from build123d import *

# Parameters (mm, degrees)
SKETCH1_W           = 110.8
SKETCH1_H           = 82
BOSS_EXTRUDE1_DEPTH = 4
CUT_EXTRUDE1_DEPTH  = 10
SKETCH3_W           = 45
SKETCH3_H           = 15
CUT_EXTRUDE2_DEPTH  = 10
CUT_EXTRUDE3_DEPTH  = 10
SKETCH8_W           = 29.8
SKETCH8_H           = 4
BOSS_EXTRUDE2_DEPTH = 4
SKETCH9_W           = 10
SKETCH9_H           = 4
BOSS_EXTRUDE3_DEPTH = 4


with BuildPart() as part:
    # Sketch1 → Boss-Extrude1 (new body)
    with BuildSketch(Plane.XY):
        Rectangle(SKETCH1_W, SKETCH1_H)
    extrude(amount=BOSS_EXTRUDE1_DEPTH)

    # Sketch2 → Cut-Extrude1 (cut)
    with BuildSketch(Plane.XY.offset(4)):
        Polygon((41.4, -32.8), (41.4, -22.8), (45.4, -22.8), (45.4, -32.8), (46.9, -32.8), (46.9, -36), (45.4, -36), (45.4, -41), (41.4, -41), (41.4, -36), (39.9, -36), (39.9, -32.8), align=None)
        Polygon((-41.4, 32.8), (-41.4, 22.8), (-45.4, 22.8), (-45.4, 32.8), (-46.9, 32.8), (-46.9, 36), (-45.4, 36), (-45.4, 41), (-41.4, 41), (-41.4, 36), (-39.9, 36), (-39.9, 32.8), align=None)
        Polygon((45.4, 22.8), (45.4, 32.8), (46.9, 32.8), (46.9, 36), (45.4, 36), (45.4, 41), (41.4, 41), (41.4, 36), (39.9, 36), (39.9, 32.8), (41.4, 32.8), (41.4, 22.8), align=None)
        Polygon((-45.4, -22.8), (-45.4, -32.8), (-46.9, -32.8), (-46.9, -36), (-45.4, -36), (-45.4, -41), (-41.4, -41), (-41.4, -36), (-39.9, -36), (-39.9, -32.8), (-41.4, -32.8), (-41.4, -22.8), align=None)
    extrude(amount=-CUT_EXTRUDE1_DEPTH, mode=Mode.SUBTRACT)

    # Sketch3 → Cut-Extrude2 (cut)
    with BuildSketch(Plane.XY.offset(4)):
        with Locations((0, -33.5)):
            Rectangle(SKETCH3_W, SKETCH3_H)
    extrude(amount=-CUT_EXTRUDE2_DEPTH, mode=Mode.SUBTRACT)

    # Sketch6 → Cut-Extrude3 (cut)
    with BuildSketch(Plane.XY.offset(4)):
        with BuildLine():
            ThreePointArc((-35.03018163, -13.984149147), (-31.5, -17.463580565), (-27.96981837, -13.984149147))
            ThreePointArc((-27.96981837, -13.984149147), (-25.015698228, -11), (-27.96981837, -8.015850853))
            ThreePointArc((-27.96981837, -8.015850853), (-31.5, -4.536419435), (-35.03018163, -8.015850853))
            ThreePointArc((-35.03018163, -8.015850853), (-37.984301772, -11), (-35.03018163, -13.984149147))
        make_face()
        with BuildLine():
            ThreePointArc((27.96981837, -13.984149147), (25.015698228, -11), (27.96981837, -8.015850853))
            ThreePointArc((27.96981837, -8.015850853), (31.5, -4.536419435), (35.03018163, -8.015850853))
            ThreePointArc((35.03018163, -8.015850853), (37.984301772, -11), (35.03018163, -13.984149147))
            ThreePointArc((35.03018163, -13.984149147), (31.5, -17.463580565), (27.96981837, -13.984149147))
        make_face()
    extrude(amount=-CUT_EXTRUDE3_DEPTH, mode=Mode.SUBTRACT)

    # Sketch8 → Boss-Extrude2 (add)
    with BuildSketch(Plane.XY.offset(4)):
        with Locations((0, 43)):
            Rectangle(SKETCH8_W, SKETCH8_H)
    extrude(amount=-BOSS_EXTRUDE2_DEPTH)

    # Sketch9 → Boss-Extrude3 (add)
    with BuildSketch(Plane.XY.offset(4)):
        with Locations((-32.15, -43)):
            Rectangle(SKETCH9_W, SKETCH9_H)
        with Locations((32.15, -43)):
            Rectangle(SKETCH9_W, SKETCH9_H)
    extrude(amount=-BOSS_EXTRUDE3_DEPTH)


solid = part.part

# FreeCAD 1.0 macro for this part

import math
import FreeCAD as App
import Part
import Sketcher

V = App.Vector


def add_polygon(sketch, points):
    """Adds a closed chain of lines whose ends are joined by coincident constraints."""
    first, n = sketch.GeometryCount, len(points)
    for a, b in zip(points, points[1:] + points[:1]):
        sketch.addGeometry(Part.LineSegment(App.Vector(*a, 0), App.Vector(*b, 0)), False)
    for i in range(n):
        sketch.addConstraint(Sketcher.Constraint("Coincident", first + i, 2, first + (i + 1) % n, 1))

doc = App.newDocument("Part")
body = doc.addObject("PartDesign::Body", "Body")

# Sketch on XY plane
sketch1 = body.newObject("Sketcher::SketchObject", "Sketch")
sketch1.AttachmentSupport = (doc.getObject("XY_Plane"), [""])
sketch1.MapMode = "FlatFace"
add_polygon(sketch1, [(-55, 41), (-55, -41), (55, -41), (55, 41)])  # lines 0-3
sketch1.addConstraint([
    Sketcher.Constraint("Vertical", 0),
    Sketcher.Constraint("Horizontal", 1),
    Sketcher.Constraint("Vertical", 2),
    Sketcher.Constraint("Horizontal", 3),
    Sketcher.Constraint("Symmetric", 0, 2, 2, 2, -1, 1),
    Sketcher.Constraint("DistanceY", 0, 2, 0, 1, 82.0),
    Sketcher.Constraint("DistanceX", 1, 1, 1, 2, 110.8),
])
pad1 = body.newObject("PartDesign::Pad", "Pad")
pad1.Profile = sketch1
pad1.Length = 4

# Sketch on XY plane
sketch2 = body.newObject("Sketcher::SketchObject", "Sketch001")
sketch2.AttachmentSupport = (doc.getObject("XY_Plane"), [""])
sketch2.MapMode = "FlatFace"
sketch2.AttachmentOffset = App.Placement(V(0, 0, 4), App.Rotation())
add_polygon(sketch2, [(41.4, -22.8), (41.4, -32.8), (39.9, -32.8), (39.9, -36), (41.4, -36), (41.4, -41), (45.4, -41), (45.4, -36), (46.9, -36), (46.9, -32.8), (45.4, -32.8), (45.4, -22.8)])  # lines 0-11
add_polygon(sketch2, [(-41.4, 22.8), (-41.4, 32.8), (-39.9, 32.8), (-39.9, 36), (-41.4, 36), (-41.4, 41), (-45.4, 41), (-45.4, 36), (-46.9, 36), (-46.9, 32.8), (-45.4, 32.8), (-45.4, 22.8)])  # lines 12-23
add_polygon(sketch2, [(45.4, 22.8), (45.4, 32.8), (46.9, 32.8), (46.9, 36), (45.4, 36), (45.4, 41), (41.4, 41), (41.4, 36), (39.9, 36), (39.9, 32.8), (41.4, 32.8), (41.4, 22.8)])  # lines 24-35
add_polygon(sketch2, [(-45.4, -22.8), (-45.4, -32.8), (-46.9, -32.8), (-46.9, -36), (-45.4, -36), (-45.4, -41), (-41.4, -41), (-41.4, -36), (-39.9, -36), (-39.9, -32.8), (-41.4, -32.8), (-41.4, -22.8)])  # lines 36-47
sketch2.addConstraint([
    Sketcher.Constraint("Vertical", 0),
    Sketcher.Constraint("Horizontal", 1),
    Sketcher.Constraint("Vertical", 2),
    Sketcher.Constraint("Horizontal", 3),
    Sketcher.Constraint("Vertical", 4),
    Sketcher.Constraint("Horizontal", 5),
    Sketcher.Constraint("Vertical", 6),
    Sketcher.Constraint("Horizontal", 7),
    Sketcher.Constraint("Vertical", 8),
    Sketcher.Constraint("Horizontal", 9),
    Sketcher.Constraint("Vertical", 10),
    Sketcher.Constraint("Horizontal", 11),
    Sketcher.Constraint("Vertical", 12),
    Sketcher.Constraint("Horizontal", 13),
    Sketcher.Constraint("Vertical", 14),
    Sketcher.Constraint("Horizontal", 15),
    Sketcher.Constraint("Vertical", 16),
    Sketcher.Constraint("Horizontal", 17),
    Sketcher.Constraint("Vertical", 18),
    Sketcher.Constraint("Horizontal", 19),
    Sketcher.Constraint("Vertical", 20),
    Sketcher.Constraint("Horizontal", 21),
    Sketcher.Constraint("Vertical", 22),
    Sketcher.Constraint("Horizontal", 23),
    Sketcher.Constraint("Vertical", 24),
    Sketcher.Constraint("Horizontal", 25),
    Sketcher.Constraint("Vertical", 26),
    Sketcher.Constraint("Horizontal", 27),
    Sketcher.Constraint("Vertical", 28),
    Sketcher.Constraint("Horizontal", 29),
    Sketcher.Constraint("Vertical", 30),
    Sketcher.Constraint("Horizontal", 31),
    Sketcher.Constraint("Vertical", 32),
    Sketcher.Constraint("Horizontal", 33),
    Sketcher.Constraint("Vertical", 34),
    Sketcher.Constraint("Horizontal", 35),
    Sketcher.Constraint("Vertical", 36),
    Sketcher.Constraint("Horizontal", 37),
    Sketcher.Constraint("Vertical", 38),
    Sketcher.Constraint("Horizontal", 39),
    Sketcher.Constraint("Vertical", 40),
    Sketcher.Constraint("Horizontal", 41),
    Sketcher.Constraint("Vertical", 42),
    Sketcher.Constraint("Horizontal", 43),
    Sketcher.Constraint("Vertical", 44),
    Sketcher.Constraint("Horizontal", 45),
    Sketcher.Constraint("Vertical", 46),
    Sketcher.Constraint("Horizontal", 47),
    Sketcher.Constraint("Symmetric", 0, 2, 12, 2, -1, 1),
    Sketcher.Constraint("Symmetric", 2, 2, 14, 2, -1, 1),
    Sketcher.Constraint("Symmetric", 4, 2, 16, 2, -1, 1),
    Sketcher.Constraint("Symmetric", 6, 2, 18, 2, -1, 1),
    Sketcher.Constraint("Symmetric", 8, 2, 20, 2, -1, 1),
    Sketcher.Constraint("Symmetric", 10, 2, 22, 2, -1, 1),
    Sketcher.Constraint("Symmetric", 24, 2, 36, 2, -1, 1),
    Sketcher.Constraint("Symmetric", 26, 2, 38, 2, -1, 1),
    Sketcher.Constraint("Symmetric", 28, 2, 40, 2, -1, 1),
    Sketcher.Constraint("Symmetric", 30, 2, 42, 2, -1, 1),
    Sketcher.Constraint("Symmetric", 32, 2, 44, 2, -1, 1),
    Sketcher.Constraint("Symmetric", 34, 2, 46, 2, -1, 1),
    Sketcher.Constraint("Symmetric", 21, 2, 24, 2, -2),
    Sketcher.Constraint("Symmetric", 19, 2, 26, 2, -2),
    Sketcher.Constraint("Symmetric", 17, 2, 28, 2, -2),
    Sketcher.Constraint("Symmetric", 15, 2, 30, 2, -2),
    Sketcher.Constraint("Symmetric", 13, 2, 32, 2, -2),
    Sketcher.Constraint("Symmetric", 23, 2, 34, 2, -2),
    Sketcher.Constraint("Horizontal", 3, 2, 6, 2),
    Sketcher.Constraint("Horizontal", 1, 2, 8, 2),
    Sketcher.Constraint("Vertical", 0, 2, 3, 2),
    Sketcher.Constraint("Vertical", 6, 2, 9, 2),
    Sketcher.Constraint("Equal", 3, 7),
    Sketcher.Constraint("DistanceX", 5, 1, 5, 2, 4.0),
    Sketcher.Constraint("DistanceY", 0, 2, 0, 1, 10.0),
    Sketcher.Constraint("DistanceY", 4, 2, 4, 1, 5.0),
    Sketcher.Constraint("DistanceX", 1, 2, 1, 1, 1.5),
    Sketcher.Constraint("DistanceY", 2, 2, 2, 1, 3.2),
    Sketcher.Constraint("DistanceY", 2, 2, -1, 1, 36.0),
    Sketcher.Constraint("DistanceX", -1, 1, 0, 2, 41.4),
])
pocket1 = body.newObject("PartDesign::Pocket", "Pocket")
pocket1.Profile = sketch2
pocket1.Length = 10

# Sketch on XY plane
sketch3 = body.newObject("Sketcher::SketchObject", "Sketch002")
sketch3.AttachmentSupport = (doc.getObject("XY_Plane"), [""])
sketch3.MapMode = "FlatFace"
sketch3.AttachmentOffset = App.Placement(V(0, 0, 4), App.Rotation())
add_polygon(sketch3, [(-22, -26), (-22, -41), (22, -41), (22, -26)])  # lines 0-3
sketch3.addConstraint([
    Sketcher.Constraint("Vertical", 0),
    Sketcher.Constraint("Horizontal", 1),
    Sketcher.Constraint("Vertical", 2),
    Sketcher.Constraint("Horizontal", 3),
    Sketcher.Constraint("DistanceX", 1, 1, 1, 2, 45.0),
    Sketcher.Constraint("DistanceY", 0, 2, 0, 1, 15.0),
    Sketcher.Constraint("DistanceY", 0, 2, -1, 1, 41.0),
    Sketcher.Constraint("DistanceX", 0, 2, -1, 1, 22.5),
])
pocket2 = body.newObject("PartDesign::Pocket", "Pocket001")
pocket2.Profile = sketch3
pocket2.Length = 10

# Sketch on XY plane
sketch4 = body.newObject("Sketcher::SketchObject", "Sketch003")
sketch4.AttachmentSupport = (doc.getObject("XY_Plane"), [""])
sketch4.MapMode = "FlatFace"
sketch4.AttachmentOffset = App.Placement(V(0, 0, 4), App.Rotation())
sketch4.addGeometry([
    Part.ArcOfCircle(Part.Circle(V(-31.5, -13.9, 0), V(0, 0, 1), 3.5), math.radians(-179), math.radians(-1)),  # 0
    Part.ArcOfCircle(Part.Circle(V(-28, -11, 0), V(0, 0, 1), 3), math.radians(-89), math.radians(89)),  # 1
    Part.ArcOfCircle(Part.Circle(V(-31.5, -8.1, 0), V(0, 0, 1), 3.5), math.radians(1), math.radians(179)),  # 2
    Part.ArcOfCircle(Part.Circle(V(-35, -11, 0), V(0, 0, 1), 3), math.radians(91), math.radians(269)),  # 3
    Part.ArcOfCircle(Part.Circle(V(28, -11, 0), V(0, 0, 1), 3), math.radians(91), math.radians(269)),  # 4
    Part.ArcOfCircle(Part.Circle(V(31.5, -13.9, 0), V(0, 0, 1), 3.5), math.radians(-179), math.radians(-1)),  # 5
    Part.ArcOfCircle(Part.Circle(V(35, -11, 0), V(0, 0, 1), 3), math.radians(-89), math.radians(89)),  # 6
    Part.ArcOfCircle(Part.Circle(V(31.5, -8.1, 0), V(0, 0, 1), 3.5), math.radians(1), math.radians(179)),  # 7
], False)
sketch4.addConstraint([
    Sketcher.Constraint("Coincident", 0, 2, 1, 1),
    Sketcher.Constraint("Coincident", 1, 2, 2, 1),
    Sketcher.Constraint("Coincident", 2, 2, 3, 1),
    Sketcher.Constraint("Coincident", 3, 2, 0, 1),
    Sketcher.Constraint("Coincident", 4, 2, 5, 1),
    Sketcher.Constraint("Coincident", 5, 2, 6, 1),
    Sketcher.Constraint("Coincident", 6, 2, 7, 1),
    Sketcher.Constraint("Coincident", 7, 2, 4, 1),
    Sketcher.Constraint("Equal", 0, 2),
    Sketcher.Constraint("Equal", 1, 3),
    Sketcher.Constraint("Equal", 3, 4),
    Sketcher.Constraint("Equal", 2, 5),
    Sketcher.Constraint("Equal", 4, 6),
    Sketcher.Constraint("Equal", 5, 7),
    Sketcher.Constraint("Symmetric", 1, 3, 4, 3, -2),
    Sketcher.Constraint("Symmetric", 0, 3, 5, 3, -2),
    Sketcher.Constraint("Symmetric", 3, 3, 6, 3, -2),
    Sketcher.Constraint("Symmetric", 2, 3, 7, 3, -2),
    Sketcher.Constraint("Horizontal", 1, 3, 3, 3),
    Sketcher.Constraint("Horizontal", 1, 2, 2, 2),
    Sketcher.Constraint("Horizontal", 0, 2, 3, 2),
    Sketcher.Constraint("Vertical", 0, 2, 1, 2),
    Sketcher.Constraint("DistanceX", 1, 3, -1, 1, 28.0),
    Sketcher.Constraint("DistanceY", 1, 3, -1, 1, 11.0),
    Sketcher.Constraint("DistanceX", 3, 3, -1, 1, 35.0),
    Sketcher.Constraint("Radius", 1, 2.984302),
    Sketcher.Constraint("Radius", 0, 3.530552),
    Sketcher.Constraint("DistanceY", 0, 3, -1, 1, 13.933029),
])
pocket3 = body.newObject("PartDesign::Pocket", "Pocket002")
pocket3.Profile = sketch4
pocket3.Length = 10

# Sketch on XY plane
sketch5 = body.newObject("Sketcher::SketchObject", "Sketch004")
sketch5.AttachmentSupport = (doc.getObject("XY_Plane"), [""])
sketch5.MapMode = "FlatFace"
sketch5.AttachmentOffset = App.Placement(V(0, 0, 4), App.Rotation())
add_polygon(sketch5, [(-14.9, 45), (-14.9, 41), (14.9, 41), (14.9, 45)])  # lines 0-3
sketch5.addConstraint([
    Sketcher.Constraint("Vertical", 0),
    Sketcher.Constraint("Horizontal", 1),
    Sketcher.Constraint("Vertical", 2),
    Sketcher.Constraint("Horizontal", 3),
    Sketcher.Constraint("DistanceY", 0, 2, 0, 1, 4.0),
    Sketcher.Constraint("DistanceX", 1, 1, 1, 2, 29.8),
    Sketcher.Constraint("DistanceY", -1, 1, 0, 2, 41.0),
    Sketcher.Constraint("DistanceX", 0, 2, -1, 1, 14.9),
])
pad2 = body.newObject("PartDesign::Pad", "Pad001")
pad2.Profile = sketch5
pad2.Length = 4
pad2.Reversed = True

# Sketch on XY plane
sketch6 = body.newObject("Sketcher::SketchObject", "Sketch005")
sketch6.AttachmentSupport = (doc.getObject("XY_Plane"), [""])
sketch6.MapMode = "FlatFace"
sketch6.AttachmentOffset = App.Placement(V(0, 0, 4), App.Rotation())
add_polygon(sketch6, [(-37.1, -41), (-37.1, -45), (-27.1, -45), (-27.1, -41)])  # lines 0-3
add_polygon(sketch6, [(27.1, -41), (27.1, -45), (37.1, -45), (37.1, -41)])  # lines 4-7
sketch6.addConstraint([
    Sketcher.Constraint("Vertical", 0),
    Sketcher.Constraint("Horizontal", 1),
    Sketcher.Constraint("Vertical", 2),
    Sketcher.Constraint("Horizontal", 3),
    Sketcher.Constraint("Vertical", 4),
    Sketcher.Constraint("Horizontal", 5),
    Sketcher.Constraint("Vertical", 6),
    Sketcher.Constraint("Horizontal", 7),
    Sketcher.Constraint("Symmetric", 1, 2, 4, 2, -2),
    Sketcher.Constraint("Symmetric", 3, 2, 6, 2, -2),
    Sketcher.Constraint("DistanceX", 1, 1, 1, 2, 10.0),
    Sketcher.Constraint("DistanceY", 0, 2, 0, 1, 4.0),
    Sketcher.Constraint("DistanceY", 0, 2, -1, 1, 45.0),
    Sketcher.Constraint("DistanceX", 1, 2, 4, 2, 54.3),
])
pad3 = body.newObject("PartDesign::Pad", "Pad002")
pad3.Profile = sketch6
pad3.Length = 4
pad3.Reversed = True

doc.recompute()
